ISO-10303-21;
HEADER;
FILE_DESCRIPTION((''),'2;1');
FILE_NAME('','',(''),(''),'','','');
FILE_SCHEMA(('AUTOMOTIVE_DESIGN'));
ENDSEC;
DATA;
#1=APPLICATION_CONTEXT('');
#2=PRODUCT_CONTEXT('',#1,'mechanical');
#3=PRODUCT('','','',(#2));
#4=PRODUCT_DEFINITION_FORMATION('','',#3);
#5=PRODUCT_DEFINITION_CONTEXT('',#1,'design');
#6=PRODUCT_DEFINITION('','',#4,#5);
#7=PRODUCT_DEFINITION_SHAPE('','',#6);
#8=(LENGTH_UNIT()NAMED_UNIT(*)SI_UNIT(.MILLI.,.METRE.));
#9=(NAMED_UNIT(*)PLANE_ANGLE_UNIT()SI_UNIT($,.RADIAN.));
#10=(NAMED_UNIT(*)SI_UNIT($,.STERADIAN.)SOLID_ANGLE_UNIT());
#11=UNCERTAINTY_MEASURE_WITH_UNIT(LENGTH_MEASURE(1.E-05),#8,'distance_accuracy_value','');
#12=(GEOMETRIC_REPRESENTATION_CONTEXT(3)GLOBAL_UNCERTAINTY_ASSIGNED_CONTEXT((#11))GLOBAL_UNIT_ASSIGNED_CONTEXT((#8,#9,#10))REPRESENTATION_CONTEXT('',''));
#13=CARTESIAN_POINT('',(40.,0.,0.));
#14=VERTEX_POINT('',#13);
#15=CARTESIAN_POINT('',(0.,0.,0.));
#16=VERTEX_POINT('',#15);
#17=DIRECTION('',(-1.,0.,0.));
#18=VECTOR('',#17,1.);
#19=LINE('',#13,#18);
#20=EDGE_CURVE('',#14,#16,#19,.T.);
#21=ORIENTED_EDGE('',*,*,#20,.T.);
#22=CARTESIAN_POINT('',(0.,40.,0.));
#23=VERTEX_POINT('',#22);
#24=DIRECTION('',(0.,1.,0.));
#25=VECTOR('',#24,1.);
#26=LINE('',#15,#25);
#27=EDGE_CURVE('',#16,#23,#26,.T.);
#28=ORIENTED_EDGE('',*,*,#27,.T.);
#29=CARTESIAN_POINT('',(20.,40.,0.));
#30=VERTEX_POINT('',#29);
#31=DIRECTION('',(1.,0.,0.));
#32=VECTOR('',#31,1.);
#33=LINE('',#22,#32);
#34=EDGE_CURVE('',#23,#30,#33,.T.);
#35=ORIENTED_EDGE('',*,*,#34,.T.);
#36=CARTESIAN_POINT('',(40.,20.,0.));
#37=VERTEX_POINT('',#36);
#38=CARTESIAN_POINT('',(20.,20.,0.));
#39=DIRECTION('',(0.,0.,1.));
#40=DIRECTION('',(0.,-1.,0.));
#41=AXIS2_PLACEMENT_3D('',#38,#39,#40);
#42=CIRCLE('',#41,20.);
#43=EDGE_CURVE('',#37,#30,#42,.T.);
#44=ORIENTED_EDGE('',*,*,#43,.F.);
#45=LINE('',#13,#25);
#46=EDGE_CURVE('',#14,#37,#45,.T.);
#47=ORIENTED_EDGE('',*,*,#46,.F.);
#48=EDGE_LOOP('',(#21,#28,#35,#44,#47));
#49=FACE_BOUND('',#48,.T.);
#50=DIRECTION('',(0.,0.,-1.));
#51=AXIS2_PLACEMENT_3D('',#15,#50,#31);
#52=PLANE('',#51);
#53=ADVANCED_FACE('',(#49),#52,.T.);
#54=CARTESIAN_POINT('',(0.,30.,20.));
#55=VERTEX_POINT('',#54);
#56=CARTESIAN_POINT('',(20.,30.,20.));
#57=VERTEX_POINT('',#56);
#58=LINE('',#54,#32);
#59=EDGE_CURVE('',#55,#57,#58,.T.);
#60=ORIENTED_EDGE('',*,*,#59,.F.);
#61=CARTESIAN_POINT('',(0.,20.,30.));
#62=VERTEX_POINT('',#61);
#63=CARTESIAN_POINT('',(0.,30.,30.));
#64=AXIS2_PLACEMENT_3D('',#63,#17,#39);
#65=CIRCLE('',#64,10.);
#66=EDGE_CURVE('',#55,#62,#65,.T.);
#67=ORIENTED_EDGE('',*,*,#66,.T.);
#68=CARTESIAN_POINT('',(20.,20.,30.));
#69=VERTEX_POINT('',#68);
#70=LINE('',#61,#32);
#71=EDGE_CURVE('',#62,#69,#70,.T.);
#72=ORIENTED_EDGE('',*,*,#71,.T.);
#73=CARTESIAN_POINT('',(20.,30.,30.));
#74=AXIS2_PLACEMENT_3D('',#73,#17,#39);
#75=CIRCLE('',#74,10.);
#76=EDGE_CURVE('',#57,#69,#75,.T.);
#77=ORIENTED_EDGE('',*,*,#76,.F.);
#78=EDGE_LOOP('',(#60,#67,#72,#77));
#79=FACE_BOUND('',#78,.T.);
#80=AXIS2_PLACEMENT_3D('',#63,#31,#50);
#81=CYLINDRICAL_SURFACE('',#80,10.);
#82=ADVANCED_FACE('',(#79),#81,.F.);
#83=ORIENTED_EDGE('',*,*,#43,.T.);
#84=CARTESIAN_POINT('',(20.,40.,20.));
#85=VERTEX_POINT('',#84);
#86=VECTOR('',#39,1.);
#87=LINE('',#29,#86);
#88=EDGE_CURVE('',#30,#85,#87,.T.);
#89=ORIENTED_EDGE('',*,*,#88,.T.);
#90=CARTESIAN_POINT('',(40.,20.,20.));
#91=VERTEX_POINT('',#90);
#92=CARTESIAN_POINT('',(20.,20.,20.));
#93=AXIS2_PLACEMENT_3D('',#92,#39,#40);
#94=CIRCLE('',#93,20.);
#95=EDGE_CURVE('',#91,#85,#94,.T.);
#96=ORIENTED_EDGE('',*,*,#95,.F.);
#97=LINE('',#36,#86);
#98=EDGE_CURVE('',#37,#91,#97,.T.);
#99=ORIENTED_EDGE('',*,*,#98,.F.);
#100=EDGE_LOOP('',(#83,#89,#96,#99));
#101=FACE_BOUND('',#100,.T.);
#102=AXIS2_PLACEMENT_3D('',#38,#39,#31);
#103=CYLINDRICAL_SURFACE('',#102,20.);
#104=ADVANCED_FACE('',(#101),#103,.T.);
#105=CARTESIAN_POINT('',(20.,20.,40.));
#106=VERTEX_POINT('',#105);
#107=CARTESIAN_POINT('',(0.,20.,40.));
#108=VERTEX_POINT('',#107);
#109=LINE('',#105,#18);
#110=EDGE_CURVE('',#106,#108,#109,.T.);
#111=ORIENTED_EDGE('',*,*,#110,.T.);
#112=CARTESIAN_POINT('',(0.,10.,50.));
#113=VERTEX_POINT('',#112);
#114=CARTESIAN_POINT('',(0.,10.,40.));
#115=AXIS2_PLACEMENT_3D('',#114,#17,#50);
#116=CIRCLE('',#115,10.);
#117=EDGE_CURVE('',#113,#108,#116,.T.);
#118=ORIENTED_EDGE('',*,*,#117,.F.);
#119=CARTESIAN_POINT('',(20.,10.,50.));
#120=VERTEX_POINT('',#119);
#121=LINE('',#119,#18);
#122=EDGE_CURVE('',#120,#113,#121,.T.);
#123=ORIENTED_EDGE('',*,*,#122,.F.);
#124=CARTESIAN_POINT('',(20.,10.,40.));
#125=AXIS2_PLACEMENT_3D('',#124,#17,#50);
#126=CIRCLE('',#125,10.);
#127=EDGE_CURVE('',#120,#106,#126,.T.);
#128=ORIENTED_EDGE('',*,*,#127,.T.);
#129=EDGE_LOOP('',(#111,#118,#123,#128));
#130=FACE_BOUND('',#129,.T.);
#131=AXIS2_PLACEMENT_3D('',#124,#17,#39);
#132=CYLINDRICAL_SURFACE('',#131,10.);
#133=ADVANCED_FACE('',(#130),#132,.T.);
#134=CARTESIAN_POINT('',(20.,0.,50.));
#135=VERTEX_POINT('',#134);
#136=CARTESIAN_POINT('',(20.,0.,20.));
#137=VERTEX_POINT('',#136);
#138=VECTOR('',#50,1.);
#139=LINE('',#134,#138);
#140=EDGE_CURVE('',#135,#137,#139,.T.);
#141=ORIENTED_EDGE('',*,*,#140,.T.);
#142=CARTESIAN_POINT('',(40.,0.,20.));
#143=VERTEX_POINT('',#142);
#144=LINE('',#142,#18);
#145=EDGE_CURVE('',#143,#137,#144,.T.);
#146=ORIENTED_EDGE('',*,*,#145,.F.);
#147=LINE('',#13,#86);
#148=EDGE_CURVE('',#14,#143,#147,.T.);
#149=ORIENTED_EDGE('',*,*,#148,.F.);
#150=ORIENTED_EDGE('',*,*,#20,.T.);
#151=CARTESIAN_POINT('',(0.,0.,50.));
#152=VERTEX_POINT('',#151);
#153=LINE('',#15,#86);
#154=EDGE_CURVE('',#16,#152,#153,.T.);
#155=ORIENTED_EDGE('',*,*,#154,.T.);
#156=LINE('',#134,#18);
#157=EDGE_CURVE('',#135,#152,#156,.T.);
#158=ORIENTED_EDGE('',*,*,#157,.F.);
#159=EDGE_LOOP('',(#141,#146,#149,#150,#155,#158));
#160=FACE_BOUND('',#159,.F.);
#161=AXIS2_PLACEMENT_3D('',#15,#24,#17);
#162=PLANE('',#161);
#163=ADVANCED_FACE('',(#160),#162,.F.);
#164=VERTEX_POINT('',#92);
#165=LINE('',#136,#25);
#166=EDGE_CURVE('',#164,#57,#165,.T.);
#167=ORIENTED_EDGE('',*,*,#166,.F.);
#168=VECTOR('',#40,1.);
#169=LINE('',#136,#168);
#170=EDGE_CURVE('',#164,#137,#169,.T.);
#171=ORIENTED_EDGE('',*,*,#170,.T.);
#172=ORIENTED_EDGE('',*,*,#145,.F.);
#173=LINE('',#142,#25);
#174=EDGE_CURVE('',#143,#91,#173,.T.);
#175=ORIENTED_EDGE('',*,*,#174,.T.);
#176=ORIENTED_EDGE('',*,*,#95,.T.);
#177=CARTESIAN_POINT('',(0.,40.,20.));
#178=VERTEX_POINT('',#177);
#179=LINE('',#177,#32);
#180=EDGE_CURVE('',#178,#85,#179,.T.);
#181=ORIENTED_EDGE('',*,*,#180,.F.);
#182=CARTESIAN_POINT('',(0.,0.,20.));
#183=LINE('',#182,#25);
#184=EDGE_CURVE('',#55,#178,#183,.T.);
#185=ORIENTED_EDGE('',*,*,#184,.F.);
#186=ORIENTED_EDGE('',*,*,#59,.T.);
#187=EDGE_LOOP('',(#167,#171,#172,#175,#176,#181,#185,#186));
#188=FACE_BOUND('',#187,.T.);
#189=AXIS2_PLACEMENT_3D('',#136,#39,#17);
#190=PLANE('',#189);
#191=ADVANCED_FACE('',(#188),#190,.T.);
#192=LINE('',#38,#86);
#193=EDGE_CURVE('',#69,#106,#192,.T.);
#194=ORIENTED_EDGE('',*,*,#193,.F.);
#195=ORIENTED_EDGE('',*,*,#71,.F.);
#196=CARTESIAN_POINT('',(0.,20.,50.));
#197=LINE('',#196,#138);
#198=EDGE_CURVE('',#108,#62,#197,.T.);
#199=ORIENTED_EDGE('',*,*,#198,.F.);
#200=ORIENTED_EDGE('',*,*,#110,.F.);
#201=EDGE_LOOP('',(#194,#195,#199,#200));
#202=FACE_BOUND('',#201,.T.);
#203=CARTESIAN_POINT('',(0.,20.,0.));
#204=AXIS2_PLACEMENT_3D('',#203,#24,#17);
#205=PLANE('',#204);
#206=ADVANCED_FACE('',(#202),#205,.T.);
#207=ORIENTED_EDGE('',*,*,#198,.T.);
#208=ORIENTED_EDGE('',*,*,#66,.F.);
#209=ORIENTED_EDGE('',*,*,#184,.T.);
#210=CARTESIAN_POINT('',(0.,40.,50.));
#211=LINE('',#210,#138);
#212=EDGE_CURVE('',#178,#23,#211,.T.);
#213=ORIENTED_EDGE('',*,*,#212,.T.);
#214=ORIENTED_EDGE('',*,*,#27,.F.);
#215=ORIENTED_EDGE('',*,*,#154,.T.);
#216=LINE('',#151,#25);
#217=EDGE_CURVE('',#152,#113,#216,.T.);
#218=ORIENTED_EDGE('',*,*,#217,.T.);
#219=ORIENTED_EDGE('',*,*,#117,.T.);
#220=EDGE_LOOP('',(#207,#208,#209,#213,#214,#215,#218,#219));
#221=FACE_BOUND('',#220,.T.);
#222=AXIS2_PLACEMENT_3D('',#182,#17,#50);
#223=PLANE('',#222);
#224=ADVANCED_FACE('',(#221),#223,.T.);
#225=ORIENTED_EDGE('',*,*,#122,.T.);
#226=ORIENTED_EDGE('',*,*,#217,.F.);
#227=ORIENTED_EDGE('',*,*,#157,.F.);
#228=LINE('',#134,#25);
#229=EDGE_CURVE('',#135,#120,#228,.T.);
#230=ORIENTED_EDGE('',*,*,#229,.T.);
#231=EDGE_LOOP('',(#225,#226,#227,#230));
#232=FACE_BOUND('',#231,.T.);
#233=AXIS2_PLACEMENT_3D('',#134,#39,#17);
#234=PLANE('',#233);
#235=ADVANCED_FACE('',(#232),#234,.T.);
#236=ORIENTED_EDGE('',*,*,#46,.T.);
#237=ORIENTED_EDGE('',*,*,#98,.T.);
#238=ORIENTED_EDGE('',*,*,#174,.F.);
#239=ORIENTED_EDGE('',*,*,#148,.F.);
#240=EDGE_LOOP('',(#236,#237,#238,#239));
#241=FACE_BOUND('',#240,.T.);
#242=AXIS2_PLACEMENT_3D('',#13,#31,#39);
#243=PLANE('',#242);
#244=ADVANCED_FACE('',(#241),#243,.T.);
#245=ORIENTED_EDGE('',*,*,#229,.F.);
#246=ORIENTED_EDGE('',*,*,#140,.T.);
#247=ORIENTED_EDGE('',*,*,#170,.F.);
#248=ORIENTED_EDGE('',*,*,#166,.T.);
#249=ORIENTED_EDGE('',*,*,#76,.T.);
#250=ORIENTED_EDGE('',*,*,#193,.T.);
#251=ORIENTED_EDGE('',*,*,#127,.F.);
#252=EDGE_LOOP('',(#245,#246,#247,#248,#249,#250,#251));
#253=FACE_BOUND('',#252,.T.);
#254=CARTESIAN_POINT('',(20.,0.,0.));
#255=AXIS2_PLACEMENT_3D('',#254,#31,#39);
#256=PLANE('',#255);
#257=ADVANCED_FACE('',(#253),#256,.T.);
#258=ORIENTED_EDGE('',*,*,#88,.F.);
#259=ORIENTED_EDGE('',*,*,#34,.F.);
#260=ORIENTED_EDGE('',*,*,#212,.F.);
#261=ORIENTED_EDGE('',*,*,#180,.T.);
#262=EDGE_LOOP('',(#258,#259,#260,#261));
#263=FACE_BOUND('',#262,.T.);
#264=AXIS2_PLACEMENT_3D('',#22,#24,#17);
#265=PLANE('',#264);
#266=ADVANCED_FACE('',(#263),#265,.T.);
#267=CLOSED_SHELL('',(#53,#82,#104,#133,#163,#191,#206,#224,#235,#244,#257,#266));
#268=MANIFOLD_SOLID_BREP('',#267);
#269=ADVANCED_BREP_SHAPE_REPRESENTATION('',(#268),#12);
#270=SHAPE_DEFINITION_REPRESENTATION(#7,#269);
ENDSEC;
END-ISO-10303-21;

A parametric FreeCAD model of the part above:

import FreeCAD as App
import Part
import Sketcher
from FreeCAD import Vector
Q = App.Units.Quantity


def edges_at(feature, points):
    """Names of the edges that pass closest to the given points."""
    edges = feature.Shape.Edges
    near = lambda p: min(range(len(edges)), key=lambda i: edges[i].distToShape(Part.Vertex(*p))[0])
    return sorted({f"Edge{near(p) + 1}" for p in points})


def add_polygon(sketch, points):
    """Adds a closed chain of lines whose ends are joined by coincident constraints."""
    first, n = sketch.GeometryCount, len(points)
    for a, b in zip(points, points[1:] + points[:1]):
        sketch.addGeometry(Part.LineSegment(App.Vector(*a, 0), App.Vector(*b, 0)), False)
    for i in range(n):
        sketch.addConstraint(Sketcher.Constraint("Coincident", first + i, 2, first + (i + 1) % n, 1))

doc = App.newDocument("Part")
body = doc.addObject("PartDesign::Body", "Body")

sketch1 = body.newObject("Sketcher::SketchObject", "Sketch")
sketch1.AttachmentSupport = (doc.getObject("XZ_Plane"), [""])
sketch1.MapMode = "FlatFace"
add_polygon(sketch1, [(20, 0), (0, 0), (0, 50), (20, 50)])
sketch1.addConstraint([
    Sketcher.Constraint("Horizontal", 0),
    Sketcher.Constraint("Vertical", 1),
    Sketcher.Constraint("Horizontal", 2),
    Sketcher.Constraint("Vertical", 3),
    Sketcher.Constraint("Coincident", 0, 2, -1, 1),
    Sketcher.Constraint("DistanceX", 0, 2, 0, 1, Q("20 mm")),
    Sketcher.Constraint("DistanceY", 1, 1, 1, 2, Q("50 mm")),
])
pad1 = body.newObject("PartDesign::Pad", "Pad")
pad1.Profile = sketch1
pad1.Length = 20
pad1.Reversed = True

sketch2 = body.newObject("Sketcher::SketchObject", "Sketch001")
sketch2.AttachmentSupport = (doc.getObject("XZ_Plane"), [""])
sketch2.MapMode = "FlatFace"
add_polygon(sketch2, [(0, 0), (0, 20), (40, 20), (40, 0)])
sketch2.addConstraint([
    Sketcher.Constraint("Vertical", 0),
    Sketcher.Constraint("Horizontal", 1),
    Sketcher.Constraint("Vertical", 2),
    Sketcher.Constraint("Horizontal", 3),
    Sketcher.Constraint("Coincident", 3, 2, -1, 1),
    Sketcher.Constraint("DistanceX", 1, 1, 1, 2, Q("40 mm")),
    Sketcher.Constraint("DistanceY", 0, 1, 0, 2, Q("20 mm")),
])
pad2 = body.newObject("PartDesign::Pad", "Pad001")
pad2.Profile = sketch2
pad2.Length = 40
pad2.Reversed = True
doc.recompute()

fillet = body.newObject("PartDesign::Fillet", "Fillet")
fillet.Base = (pad2, edges_at(pad2, [(40, 40, 10)]))
fillet.Radius = 20
doc.recompute()

fillet2 = body.newObject("PartDesign::Fillet", "Fillet001")
fillet2.Base = (fillet, edges_at(fillet, [(10, 20, 50), (10, 20, 20)]))
fillet2.Radius = 10

doc.recompute()
